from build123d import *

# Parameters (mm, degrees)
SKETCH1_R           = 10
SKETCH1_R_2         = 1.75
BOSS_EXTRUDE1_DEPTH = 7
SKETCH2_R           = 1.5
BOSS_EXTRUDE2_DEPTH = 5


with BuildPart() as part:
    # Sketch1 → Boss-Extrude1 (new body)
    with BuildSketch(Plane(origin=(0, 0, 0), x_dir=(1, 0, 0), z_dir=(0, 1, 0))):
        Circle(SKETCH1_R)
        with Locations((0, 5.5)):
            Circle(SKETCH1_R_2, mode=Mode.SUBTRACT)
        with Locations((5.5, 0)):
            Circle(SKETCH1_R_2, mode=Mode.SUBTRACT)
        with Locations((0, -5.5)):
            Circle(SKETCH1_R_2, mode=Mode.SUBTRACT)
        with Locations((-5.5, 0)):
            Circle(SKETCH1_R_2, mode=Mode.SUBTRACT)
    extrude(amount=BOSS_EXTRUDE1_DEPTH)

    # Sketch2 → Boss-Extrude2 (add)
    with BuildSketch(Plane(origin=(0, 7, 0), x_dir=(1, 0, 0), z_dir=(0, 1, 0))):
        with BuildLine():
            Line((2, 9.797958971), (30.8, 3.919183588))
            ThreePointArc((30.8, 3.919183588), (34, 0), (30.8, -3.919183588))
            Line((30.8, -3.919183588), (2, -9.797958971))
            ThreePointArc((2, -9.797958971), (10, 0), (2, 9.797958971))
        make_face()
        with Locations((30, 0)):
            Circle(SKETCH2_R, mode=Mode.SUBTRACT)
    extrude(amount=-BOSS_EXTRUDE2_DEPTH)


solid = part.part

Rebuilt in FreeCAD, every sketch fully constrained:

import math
import FreeCAD as App
import Part
import Sketcher
from FreeCAD import Vector

doc = App.newDocument("Part")
body = doc.addObject("PartDesign::Body", "Body")

sketch1 = body.newObject("Sketcher::SketchObject", "Sketch")
sketch1.AttachmentSupport = (doc.getObject("XZ_Plane"), [""])
sketch1.MapMode = "FlatFace"
sketch1.addGeometry(Part.Circle(Vector(0, 0, 0), Vector(0, 0, 1), 10), False)
sketch1.addGeometry(Part.Circle(Vector(0, 5.5, 0), Vector(0, 0, 1), 1.8), False)
sketch1.addGeometry(Part.Circle(Vector(-5.5, 0, 0), Vector(0, 0, 1), 1.8), False)
sketch1.addGeometry(Part.Circle(Vector(5.5, 0, 0), Vector(0, 0, 1), 1.8), False)
sketch1.addGeometry(Part.Circle(Vector(0, -5.5, 0), Vector(0, 0, 1), 1.8), False)
sketch1.addConstraint(Sketcher.Constraint("Coincident", 0, 3, -1, 1))
sketch1.addConstraint(Sketcher.Constraint("Equal", 1, 2))
sketch1.addConstraint(Sketcher.Constraint("Equal", 2, 3))
sketch1.addConstraint(Sketcher.Constraint("Equal", 3, 4))
sketch1.addConstraint(Sketcher.Constraint("Symmetric", 2, 3, 3, 3, -1, 1))
sketch1.addConstraint(Sketcher.Constraint("Symmetric", 1, 3, 4, 3, -1, 1))
sketch1.addConstraint(Sketcher.Constraint("PointOnObject", 1, 3, -2))
sketch1.addConstraint(Sketcher.Constraint("PointOnObject", 2, 3, -1))
sketch1.addConstraint(Sketcher.Constraint("Diameter", 0, 20.0))
sketch1.addConstraint(Sketcher.Constraint("Diameter", 1, 3.5))
sketch1.addConstraint(Sketcher.Constraint("DistanceX", 2, 3, 3, 3, 11.0))
sketch1.addConstraint(Sketcher.Constraint("DistanceY", 4, 3, 1, 3, 11.0))
pad1 = body.newObject("PartDesign::Pad", "Pad")
pad1.Profile = sketch1
pad1.Length = 7
pad1.Reversed = True

sketch2 = body.newObject("Sketcher::SketchObject", "Sketch001")
sketch2.AttachmentSupport = (doc.getObject("XZ_Plane"), [""])
sketch2.MapMode = "FlatFace"
sketch2.AttachmentOffset = App.Placement(Vector(0, 0, -7), App.Rotation())
sketch2.addGeometry(Part.LineSegment(Vector(30.8, -3.9, 0), Vector(2, -9.8, 0)), False)
sketch2.addGeometry(Part.ArcOfCircle(Part.Circle(Vector(0, 0, 0), Vector(0, 0, 1), 10), math.radians(-78), math.radians(78)), False)
sketch2.addGeometry(Part.LineSegment(Vector(2, 9.8, 0), Vector(30.8, 3.9, 0)), False)
sketch2.addGeometry(Part.ArcOfCircle(Part.Circle(Vector(30, 0, 0), Vector(0, 0, 1), 4), math.radians(-78), math.radians(78)), False)
sketch2.addGeometry(Part.Circle(Vector(30, 0, 0), Vector(0, 0, 1), 1.5), False)
sketch2.addConstraint(Sketcher.Constraint("Tangent", 0, 2, 1, 1))
sketch2.addConstraint(Sketcher.Constraint("Tangent", 1, 2, 2, 1))
sketch2.addConstraint(Sketcher.Constraint("Tangent", 2, 2, 3, 2))
sketch2.addConstraint(Sketcher.Constraint("Tangent", 3, 1, 0, 1))
sketch2.addConstraint(Sketcher.Constraint("Coincident", 1, 3, -1, 1))
sketch2.addConstraint(Sketcher.Constraint("Coincident", 4, 3, 3, 3))
sketch2.addConstraint(Sketcher.Constraint("PointOnObject", 3, 3, -1))
sketch2.addConstraint(Sketcher.Constraint("Diameter", 4, 3.0))
sketch2.addConstraint(Sketcher.Constraint("Radius", 1, 10.0))
sketch2.addConstraint(Sketcher.Constraint("Radius", 3, 4.0))
sketch2.addConstraint(Sketcher.Constraint("DistanceX", -1, 1, 3, 3, 30.0))
pad2 = body.newObject("PartDesign::Pad", "Pad001")
pad2.Profile = sketch2
pad2.Length = 5

doc.recompute()
